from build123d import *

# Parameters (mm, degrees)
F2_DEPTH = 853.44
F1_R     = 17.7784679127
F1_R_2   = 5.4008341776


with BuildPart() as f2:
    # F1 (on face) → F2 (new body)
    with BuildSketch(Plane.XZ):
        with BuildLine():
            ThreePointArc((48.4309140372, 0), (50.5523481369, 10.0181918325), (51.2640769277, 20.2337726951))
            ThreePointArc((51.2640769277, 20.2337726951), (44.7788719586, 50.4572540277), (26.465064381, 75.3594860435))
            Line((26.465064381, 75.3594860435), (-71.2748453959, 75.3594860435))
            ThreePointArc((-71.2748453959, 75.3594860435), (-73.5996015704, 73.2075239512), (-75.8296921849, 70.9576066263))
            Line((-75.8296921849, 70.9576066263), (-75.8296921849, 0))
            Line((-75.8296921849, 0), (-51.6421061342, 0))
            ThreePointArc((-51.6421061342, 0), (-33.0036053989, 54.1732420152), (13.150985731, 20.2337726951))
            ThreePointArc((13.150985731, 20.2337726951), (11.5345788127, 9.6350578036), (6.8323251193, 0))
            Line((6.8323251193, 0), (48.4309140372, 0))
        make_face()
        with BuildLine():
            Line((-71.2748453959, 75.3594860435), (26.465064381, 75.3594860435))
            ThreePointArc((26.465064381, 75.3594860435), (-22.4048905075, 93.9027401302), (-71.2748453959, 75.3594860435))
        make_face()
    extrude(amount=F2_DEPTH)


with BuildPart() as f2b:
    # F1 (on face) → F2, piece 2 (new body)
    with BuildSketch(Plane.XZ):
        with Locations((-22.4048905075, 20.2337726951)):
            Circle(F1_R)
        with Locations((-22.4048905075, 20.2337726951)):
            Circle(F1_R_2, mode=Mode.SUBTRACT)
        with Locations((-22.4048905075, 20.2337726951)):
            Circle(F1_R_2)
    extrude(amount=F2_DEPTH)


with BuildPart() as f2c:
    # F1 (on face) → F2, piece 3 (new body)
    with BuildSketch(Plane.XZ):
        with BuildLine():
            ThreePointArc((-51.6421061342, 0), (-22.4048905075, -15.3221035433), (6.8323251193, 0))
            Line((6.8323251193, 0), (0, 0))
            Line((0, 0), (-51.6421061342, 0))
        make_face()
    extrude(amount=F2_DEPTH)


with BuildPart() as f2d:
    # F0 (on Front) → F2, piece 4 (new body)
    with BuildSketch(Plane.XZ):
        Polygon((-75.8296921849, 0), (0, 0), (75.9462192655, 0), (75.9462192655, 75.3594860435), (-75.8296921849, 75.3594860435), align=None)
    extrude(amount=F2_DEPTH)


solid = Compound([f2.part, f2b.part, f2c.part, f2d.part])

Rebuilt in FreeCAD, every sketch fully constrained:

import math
import FreeCAD as App
import Part
import Sketcher
from FreeCAD import Vector
Q = App.Units.Quantity

doc = App.newDocument("Part")
body = doc.addObject("PartDesign::Body", "Body")

# Sketch on XZ plane
sketch1 = body.newObject("Sketcher::SketchObject", "Sketch")
sketch1.AttachmentSupport = (doc.getObject("XZ_Plane"), [""])
sketch1.MapMode = "FlatFace"
sketch1.addGeometry(Part.ArcOfCircle(Part.Circle(Vector(-22, 20, 0), Vector(0, 0, 1), 74), math.radians(-15.94), math.radians(0)), False)
sketch1.addGeometry(Part.ArcOfCircle(Part.Circle(Vector(-22, 20, 0), Vector(0, 0, 1), 74), math.radians(0), math.radians(48)), False)
sketch1.addGeometry(Part.ArcOfCircle(Part.Circle(Vector(-22, 20, 0), Vector(0, 0, 1), 74), math.radians(48), math.radians(132)), False)
sketch1.addGeometry(Part.ArcOfCircle(Part.Circle(Vector(-22, 20, 0), Vector(0, 0, 1), 74), math.radians(131.56), math.radians(136.49)), False)
sketch1.addGeometry(Part.LineSegment(Vector(-76, 71, 0), Vector(-76, 0, 0)), False)
sketch1.addGeometry(Part.LineSegment(Vector(-76, 0, 0), Vector(-52, 0, 0)), False)
sketch1.addGeometry(Part.ArcOfCircle(Part.Circle(Vector(-22, 20, 0), Vector(0, 0, 1), 36), math.radians(0), math.radians(215)), False)
sketch1.addGeometry(Part.ArcOfCircle(Part.Circle(Vector(-22, 20, 0), Vector(0, 0, 1), 36), math.radians(-35), math.radians(0)), False)
sketch1.addGeometry(Part.LineSegment(Vector(7, 0, 0), Vector(48, 0, 0)), False)
sketch1.addConstraint(Sketcher.Constraint("Tangent", 0, 2, 1, 1))
sketch1.addConstraint(Sketcher.Constraint("Tangent", 1, 2, 2, 1))
sketch1.addConstraint(Sketcher.Constraint("Tangent", 2, 2, 3, 1))
sketch1.addConstraint(Sketcher.Constraint("Coincident", 3, 2, 4, 1))
sketch1.addConstraint(Sketcher.Constraint("Coincident", 4, 2, 5, 1))
sketch1.addConstraint(Sketcher.Constraint("Coincident", 5, 2, 6, 2))
sketch1.addConstraint(Sketcher.Constraint("Tangent", 6, 1, 7, 2))
sketch1.addConstraint(Sketcher.Constraint("Coincident", 7, 1, 8, 1))
sketch1.addConstraint(Sketcher.Constraint("Coincident", 8, 2, 0, 1))
sketch1.addConstraint(Sketcher.Constraint("Vertical", 4))
sketch1.addConstraint(Sketcher.Constraint("Horizontal", 5))
sketch1.addConstraint(Sketcher.Constraint("Horizontal", 8))
sketch1.addConstraint(Sketcher.Constraint("Coincident", 2, 3, 0, 3))
sketch1.addConstraint(Sketcher.Constraint("Coincident", 6, 3, 0, 3))
sketch1.addConstraint(Sketcher.Constraint("Equal", 2, 3))
sketch1.addConstraint(Sketcher.Constraint("Equal", 6, 7))
sketch1.addConstraint(Sketcher.Constraint("PointOnObject", 4, 2, -1))
sketch1.addConstraint(Sketcher.Constraint("PointOnObject", 7, 1, -1))
sketch1.addConstraint(Sketcher.Constraint("Horizontal", 7, 3, 0, 2))
sketch1.addConstraint(Sketcher.Constraint("Horizontal", 1, 2, 2, 2))
sketch1.addConstraint(Sketcher.Constraint("Horizontal", 0, 2, 6, 1))
sketch1.addConstraint(Sketcher.Constraint("Radius", 0, 73.668967))
sketch1.addConstraint(Sketcher.Constraint("Radius", 6, 35.555876))
sketch1.addConstraint(Sketcher.Constraint("DistanceX", 8, 1, 8, 2, 41.598589))
sketch1.addConstraint(Sketcher.Constraint("DistanceX", 3, 2, 3, 3, 53.424802))
sketch1.addConstraint(Sketcher.Constraint("DistanceX", 0, 3, -1, 1, 22.404891))
sketch1.addConstraint(Sketcher.Constraint("DistanceY", 3, 2, 2, 2, 4.401879))
pad1 = body.newObject("PartDesign::Pad", "Pad")
pad1.Profile = sketch1
pad1.Length = Q("33.6 in")
body2 = doc.addObject("PartDesign::Body", "Body001")

# Sketch on XZ plane
sketch2 = body2.newObject("Sketcher::SketchObject", "Sketch001")
sketch2.AttachmentSupport = (doc.getObject("XZ_Plane001"), [""])
sketch2.MapMode = "FlatFace"
sketch2.addGeometry(Part.Circle(Vector(-22, 20, 0), Vector(0, 0, 1), 18), False)
sketch2.addConstraint(Sketcher.Constraint("Diameter", 0, 35.556936))
sketch2.addConstraint(Sketcher.Constraint("DistanceX", 0, 3, -1, 1, 22.404891))
sketch2.addConstraint(Sketcher.Constraint("DistanceY", -1, 1, 0, 3, 20.233773))
pad2 = body2.newObject("PartDesign::Pad", "Pad001")
pad2.Profile = sketch2
pad2.Length = Q("33.6 in")
body3 = doc.addObject("PartDesign::Body", "Body002")

# Sketch on XZ plane
sketch3 = body3.newObject("Sketcher::SketchObject", "Sketch002")
sketch3.AttachmentSupport = (doc.getObject("XZ_Plane002"), [""])
sketch3.MapMode = "FlatFace"
sketch3.addGeometry(Part.ArcOfCircle(Part.Circle(Vector(-22, 20, 0), Vector(0, 0, 1), 36), math.radians(-145), math.radians(-35)), False)
sketch3.addGeometry(Part.LineSegment(Vector(7, 0, 0), Vector(-52, 0, 0)), False)
sketch3.addConstraint(Sketcher.Constraint("Coincident", 0, 1, 1, 2))
sketch3.addConstraint(Sketcher.Constraint("Coincident", 1, 1, 0, 2))
sketch3.addConstraint(Sketcher.Constraint("Horizontal", 1))
sketch3.addConstraint(Sketcher.Constraint("PointOnObject", 0, 1, -1))
sketch3.addConstraint(Sketcher.Constraint("Radius", 0, 35.555876))
sketch3.addConstraint(Sketcher.Constraint("DistanceX", 1, 2, 1, 1, 58.474431))
sketch3.addConstraint(Sketcher.Constraint("DistanceX", 0, 3, -1, 1, 22.404891))
pad3 = body3.newObject("PartDesign::Pad", "Pad002")
pad3.Profile = sketch3
pad3.Length = Q("33.6 in")
body4 = doc.addObject("PartDesign::Body", "Body003")

# Sketch on XZ plane
sketch4 = body4.newObject("Sketcher::SketchObject", "Sketch003")
sketch4.AttachmentSupport = (doc.getObject("XZ_Plane003"), [""])
sketch4.MapMode = "FlatFace"
sketch4.addGeometry(Part.LineSegment(Vector(-76, 0, 0), Vector(76, 0, 0)), False)
sketch4.addGeometry(Part.LineSegment(Vector(76, 0, 0), Vector(76, 75, 0)), False)
sketch4.addGeometry(Part.LineSegment(Vector(76, 75, 0), Vector(-76, 75, 0)), False)
sketch4.addGeometry(Part.LineSegment(Vector(-76, 75, 0), Vector(-76, 0, 0)), False)
sketch4.addConstraint(Sketcher.Constraint("Coincident", 0, 2, 1, 1))
sketch4.addConstraint(Sketcher.Constraint("Coincident", 1, 2, 2, 1))
sketch4.addConstraint(Sketcher.Constraint("Coincident", 2, 2, 3, 1))
sketch4.addConstraint(Sketcher.Constraint("Coincident", 3, 2, 0, 1))
sketch4.addConstraint(Sketcher.Constraint("Horizontal", 0))
sketch4.addConstraint(Sketcher.Constraint("Vertical", 1))
sketch4.addConstraint(Sketcher.Constraint("Horizontal", 2))
sketch4.addConstraint(Sketcher.Constraint("Vertical", 3))
sketch4.addConstraint(Sketcher.Constraint("PointOnObject", 0, 2, -1))
sketch4.addConstraint(Sketcher.Constraint("DistanceX", 0, 1, 0, 2, 151.775911))
sketch4.addConstraint(Sketcher.Constraint("DistanceY", 1, 1, 1, 2, 75.359486))
sketch4.addConstraint(Sketcher.Constraint("DistanceX", -1, 1, 0, 2, 75.946219))
pad4 = body4.newObject("PartDesign::Pad", "Pad003")
pad4.Profile = sketch4
pad4.Length = Q("33.6 in")

doc.recompute()
